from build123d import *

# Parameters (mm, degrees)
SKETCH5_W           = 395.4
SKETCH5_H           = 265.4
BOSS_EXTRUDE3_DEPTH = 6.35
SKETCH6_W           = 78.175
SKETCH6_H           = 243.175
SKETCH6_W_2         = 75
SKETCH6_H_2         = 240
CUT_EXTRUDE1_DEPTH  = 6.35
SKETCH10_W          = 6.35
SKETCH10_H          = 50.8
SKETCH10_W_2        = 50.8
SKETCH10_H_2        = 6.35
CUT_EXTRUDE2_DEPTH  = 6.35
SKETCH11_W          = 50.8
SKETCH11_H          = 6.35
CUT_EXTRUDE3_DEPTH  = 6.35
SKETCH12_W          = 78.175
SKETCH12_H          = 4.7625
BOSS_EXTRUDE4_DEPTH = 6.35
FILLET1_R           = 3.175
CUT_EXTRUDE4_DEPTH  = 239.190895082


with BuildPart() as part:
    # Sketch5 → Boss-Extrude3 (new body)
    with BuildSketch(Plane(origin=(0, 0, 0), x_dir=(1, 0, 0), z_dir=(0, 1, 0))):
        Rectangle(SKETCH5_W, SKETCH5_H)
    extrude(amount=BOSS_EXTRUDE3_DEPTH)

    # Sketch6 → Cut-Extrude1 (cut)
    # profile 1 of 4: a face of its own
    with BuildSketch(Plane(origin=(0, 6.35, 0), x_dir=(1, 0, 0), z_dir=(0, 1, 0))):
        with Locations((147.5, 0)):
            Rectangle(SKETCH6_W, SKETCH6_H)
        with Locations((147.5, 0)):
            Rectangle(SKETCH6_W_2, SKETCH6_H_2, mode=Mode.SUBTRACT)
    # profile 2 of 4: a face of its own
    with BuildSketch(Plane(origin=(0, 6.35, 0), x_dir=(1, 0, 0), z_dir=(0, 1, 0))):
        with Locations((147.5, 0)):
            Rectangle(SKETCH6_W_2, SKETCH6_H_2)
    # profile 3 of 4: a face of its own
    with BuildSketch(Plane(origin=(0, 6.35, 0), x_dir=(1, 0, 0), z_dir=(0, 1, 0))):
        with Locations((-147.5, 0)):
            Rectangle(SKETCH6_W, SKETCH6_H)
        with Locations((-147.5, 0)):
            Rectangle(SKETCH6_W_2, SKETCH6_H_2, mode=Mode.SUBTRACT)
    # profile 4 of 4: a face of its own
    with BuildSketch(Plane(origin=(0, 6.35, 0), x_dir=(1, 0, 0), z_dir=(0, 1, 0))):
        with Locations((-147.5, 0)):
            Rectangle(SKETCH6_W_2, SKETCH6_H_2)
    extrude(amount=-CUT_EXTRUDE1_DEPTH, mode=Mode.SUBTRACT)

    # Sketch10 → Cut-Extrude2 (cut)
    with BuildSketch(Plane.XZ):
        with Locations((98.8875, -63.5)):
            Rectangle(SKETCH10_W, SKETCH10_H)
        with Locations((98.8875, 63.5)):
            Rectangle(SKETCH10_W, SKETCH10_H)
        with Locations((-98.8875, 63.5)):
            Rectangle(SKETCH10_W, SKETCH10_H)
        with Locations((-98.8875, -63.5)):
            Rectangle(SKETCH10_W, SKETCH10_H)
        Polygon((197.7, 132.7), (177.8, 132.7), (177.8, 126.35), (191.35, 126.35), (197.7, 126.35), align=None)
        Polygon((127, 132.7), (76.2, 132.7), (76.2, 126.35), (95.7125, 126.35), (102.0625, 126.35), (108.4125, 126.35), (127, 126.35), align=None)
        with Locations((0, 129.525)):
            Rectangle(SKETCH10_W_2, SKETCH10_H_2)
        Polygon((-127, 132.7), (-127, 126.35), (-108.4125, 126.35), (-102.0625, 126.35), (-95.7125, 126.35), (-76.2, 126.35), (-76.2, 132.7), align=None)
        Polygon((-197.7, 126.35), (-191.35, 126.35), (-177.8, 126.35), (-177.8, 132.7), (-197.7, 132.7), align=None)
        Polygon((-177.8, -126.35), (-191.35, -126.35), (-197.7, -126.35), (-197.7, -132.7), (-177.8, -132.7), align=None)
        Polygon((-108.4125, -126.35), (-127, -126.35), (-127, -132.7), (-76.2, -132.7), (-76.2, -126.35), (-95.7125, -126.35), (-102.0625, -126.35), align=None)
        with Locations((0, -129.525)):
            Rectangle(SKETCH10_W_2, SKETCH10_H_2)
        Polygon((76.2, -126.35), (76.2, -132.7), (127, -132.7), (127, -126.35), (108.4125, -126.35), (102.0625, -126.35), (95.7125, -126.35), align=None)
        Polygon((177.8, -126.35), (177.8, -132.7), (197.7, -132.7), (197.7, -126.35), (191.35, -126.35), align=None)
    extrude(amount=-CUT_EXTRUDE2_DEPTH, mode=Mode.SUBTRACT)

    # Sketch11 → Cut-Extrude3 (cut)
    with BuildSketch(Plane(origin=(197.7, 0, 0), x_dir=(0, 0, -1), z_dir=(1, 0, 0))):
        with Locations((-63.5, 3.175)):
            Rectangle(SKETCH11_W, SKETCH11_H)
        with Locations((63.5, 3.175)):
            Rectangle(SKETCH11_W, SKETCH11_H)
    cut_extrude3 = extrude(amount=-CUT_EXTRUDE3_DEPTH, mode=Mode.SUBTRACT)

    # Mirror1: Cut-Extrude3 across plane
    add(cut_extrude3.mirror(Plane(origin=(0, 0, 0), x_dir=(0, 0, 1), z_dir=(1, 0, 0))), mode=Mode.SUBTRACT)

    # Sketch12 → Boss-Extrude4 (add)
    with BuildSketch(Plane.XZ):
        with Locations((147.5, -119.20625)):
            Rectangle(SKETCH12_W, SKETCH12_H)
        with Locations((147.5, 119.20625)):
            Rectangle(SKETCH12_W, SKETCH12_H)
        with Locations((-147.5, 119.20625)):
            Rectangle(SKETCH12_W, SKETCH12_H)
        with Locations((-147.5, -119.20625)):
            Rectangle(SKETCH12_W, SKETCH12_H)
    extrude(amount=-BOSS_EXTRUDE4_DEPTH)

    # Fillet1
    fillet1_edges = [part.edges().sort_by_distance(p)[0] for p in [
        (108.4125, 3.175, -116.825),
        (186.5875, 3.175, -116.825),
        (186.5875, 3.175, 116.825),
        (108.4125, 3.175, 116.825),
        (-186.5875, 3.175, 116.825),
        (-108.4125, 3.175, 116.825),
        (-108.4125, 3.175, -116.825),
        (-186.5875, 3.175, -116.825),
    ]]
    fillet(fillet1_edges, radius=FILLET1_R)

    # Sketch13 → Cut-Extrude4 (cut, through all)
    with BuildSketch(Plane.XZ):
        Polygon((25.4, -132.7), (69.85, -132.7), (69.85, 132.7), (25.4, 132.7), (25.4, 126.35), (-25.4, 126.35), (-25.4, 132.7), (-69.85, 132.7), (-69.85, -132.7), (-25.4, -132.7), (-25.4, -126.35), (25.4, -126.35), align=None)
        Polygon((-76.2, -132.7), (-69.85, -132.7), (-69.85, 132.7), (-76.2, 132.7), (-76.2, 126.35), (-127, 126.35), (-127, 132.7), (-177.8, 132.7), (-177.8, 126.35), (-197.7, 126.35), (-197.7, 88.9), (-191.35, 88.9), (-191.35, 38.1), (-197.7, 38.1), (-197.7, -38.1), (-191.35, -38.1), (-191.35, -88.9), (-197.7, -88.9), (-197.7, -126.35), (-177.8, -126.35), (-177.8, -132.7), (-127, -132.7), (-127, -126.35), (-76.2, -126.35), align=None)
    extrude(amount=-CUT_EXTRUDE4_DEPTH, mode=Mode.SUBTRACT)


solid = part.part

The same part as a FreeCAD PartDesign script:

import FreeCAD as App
import Part
import Sketcher
from FreeCAD import Vector
Q = App.Units.Quantity


def edges_at(feature, points):
    """Names of the edges that pass closest to the given points."""
    edges = feature.Shape.Edges
    near = lambda p: min(range(len(edges)), key=lambda i: edges[i].distToShape(Part.Vertex(*p))[0])
    return sorted({f"Edge{near(p) + 1}" for p in points})


def add_polygon(sketch, points):
    """Adds a closed chain of lines whose ends are joined by coincident constraints."""
    first, n = sketch.GeometryCount, len(points)
    for a, b in zip(points, points[1:] + points[:1]):
        sketch.addGeometry(Part.LineSegment(App.Vector(*a, 0), App.Vector(*b, 0)), False)
    for i in range(n):
        sketch.addConstraint(Sketcher.Constraint("Coincident", first + i, 2, first + (i + 1) % n, 1))

doc = App.newDocument("Part")
body = doc.addObject("PartDesign::Body", "Body")

sketch1 = doc.addObject("Sketcher::SketchObject", "Sketch")
body.addObject(sketch1)
sketch1.AttachmentSupport = (doc.XZ_Plane, [""])
sketch1.MapMode = "FlatFace"
add_polygon(sketch1, [(-197.7, -132.7), (-197.7, 132.7), (197.7, 132.7), (197.7, -132.7)])
sketch1.addConstraint(Sketcher.Constraint("Vertical", 0))
sketch1.addConstraint(Sketcher.Constraint("Horizontal", 1))
sketch1.addConstraint(Sketcher.Constraint("Vertical", 2))
sketch1.addConstraint(Sketcher.Constraint("Horizontal", 3))
sketch1.addConstraint(Sketcher.Constraint("Symmetric", 0, 2, 2, 2, -1, 1))
sketch1.addConstraint(Sketcher.Constraint("DistanceX", 1, 1, 1, 2, 395.4))
sketch1.addConstraint(Sketcher.Constraint("DistanceY", 0, 1, 0, 2, 265.4))
pad1 = doc.addObject("PartDesign::Pad", "Pad")
body.addObject(pad1)
pad1.Profile = sketch1
pad1.Length = Q("0.25 in")
pad1.Reversed = True

sketch2 = doc.addObject("Sketcher::SketchObject", "Sketch001")
body.addObject(sketch2)
sketch2.AttachmentSupport = (doc.XZ_Plane, [""])
sketch2.MapMode = "FlatFace"
sketch2.AttachmentOffset = App.Placement(Vector(0, 0, -0.25 * 25.4), App.Rotation())
add_polygon(sketch2, [(108.4125, -121.5875), (108.4125, 121.5875), (186.5875, 121.5875), (186.5875, -121.5875)])
add_polygon(sketch2, [(-186.5875, -121.5875), (-186.5875, 121.5875), (-108.4125, 121.5875), (-108.4125, -121.5875)])
sketch2.addConstraint(Sketcher.Constraint("Vertical", 0))
sketch2.addConstraint(Sketcher.Constraint("Horizontal", 1))
sketch2.addConstraint(Sketcher.Constraint("Vertical", 2))
sketch2.addConstraint(Sketcher.Constraint("Horizontal", 3))
sketch2.addConstraint(Sketcher.Constraint("Vertical", 4))
sketch2.addConstraint(Sketcher.Constraint("Horizontal", 5))
sketch2.addConstraint(Sketcher.Constraint("Vertical", 6))
sketch2.addConstraint(Sketcher.Constraint("Horizontal", 7))
sketch2.addConstraint(Sketcher.Constraint("Symmetric", 2, 2, 4, 2, -1, 1))
sketch2.addConstraint(Sketcher.Constraint("Symmetric", 0, 2, 6, 2, -1, 1))
sketch2.addConstraint(Sketcher.Constraint("Horizontal", 1, 2, 4, 2))
sketch2.addConstraint(Sketcher.Constraint("DistanceX", 1, 1, 1, 2, 78.175))
sketch2.addConstraint(Sketcher.Constraint("DistanceY", 0, 1, 0, 2, 243.175))
sketch2.addConstraint(Sketcher.Constraint("DistanceX", -1, 1, 0, 2, 108.4125))
pocket1 = doc.addObject("PartDesign::Pocket", "Pocket")
body.addObject(pocket1)
pocket1.Profile = sketch2
pocket1.Length = Q("0.25 in")
pocket1.Reversed = True

sketch3 = doc.addObject("Sketcher::SketchObject", "Sketch002")
body.addObject(sketch3)
sketch3.AttachmentSupport = (doc.XZ_Plane, [""])
sketch3.MapMode = "FlatFace"
add_polygon(sketch3, [(95.7125, -38.1), (95.7125, -88.9), (102.0625, -88.9), (102.0625, -38.1)])
add_polygon(sketch3, [(95.7125, 88.9), (95.7125, 38.1), (102.0625, 38.1), (102.0625, 88.9)])
add_polygon(sketch3, [(-102.0625, 88.9), (-102.0625, 38.1), (-95.7125, 38.1), (-95.7125, 88.9)])
add_polygon(sketch3, [(-102.0625, -38.1), (-102.0625, -88.9), (-95.7125, -88.9), (-95.7125, -38.1)])
add_polygon(sketch3, [(197.7, 132.7), (177.8, 132.7), (177.8, 126.35), (197.7, 126.35)])
add_polygon(sketch3, [(127, 132.7), (76.2, 132.7), (76.2, 126.35), (127, 126.35)])
add_polygon(sketch3, [(-25.4, 132.7), (-25.4, 126.35), (25.4, 126.35), (25.4, 132.7)])
add_polygon(sketch3, [(-127, 132.7), (-127, 126.35), (-76.2, 126.35), (-76.2, 132.7)])
add_polygon(sketch3, [(-197.7, 126.35), (-177.8, 126.35), (-177.8, 132.7), (-197.7, 132.7)])
add_polygon(sketch3, [(-177.8, -126.35), (-197.7, -126.35), (-197.7, -132.7), (-177.8, -132.7)])
add_polygon(sketch3, [(-127, -126.35), (-127, -132.7), (-76.2, -132.7), (-76.2, -126.35)])
add_polygon(sketch3, [(-25.4, -126.35), (-25.4, -132.7), (25.4, -132.7), (25.4, -126.35)])
add_polygon(sketch3, [(76.2, -126.35), (76.2, -132.7), (127, -132.7), (127, -126.35)])
add_polygon(sketch3, [(177.8, -126.35), (177.8, -132.7), (197.7, -132.7), (197.7, -126.35)])
sketch3.addConstraint(Sketcher.Constraint("Vertical", 0))
sketch3.addConstraint(Sketcher.Constraint("Horizontal", 1))
sketch3.addConstraint(Sketcher.Constraint("Vertical", 2))
sketch3.addConstraint(Sketcher.Constraint("Horizontal", 3))
sketch3.addConstraint(Sketcher.Constraint("Vertical", 4))
sketch3.addConstraint(Sketcher.Constraint("Horizontal", 5))
sketch3.addConstraint(Sketcher.Constraint("Vertical", 6))
sketch3.addConstraint(Sketcher.Constraint("Horizontal", 7))
sketch3.addConstraint(Sketcher.Constraint("Vertical", 8))
sketch3.addConstraint(Sketcher.Constraint("Horizontal", 9))
sketch3.addConstraint(Sketcher.Constraint("Vertical", 10))
sketch3.addConstraint(Sketcher.Constraint("Horizontal", 11))
sketch3.addConstraint(Sketcher.Constraint("Vertical", 12))
sketch3.addConstraint(Sketcher.Constraint("Horizontal", 13))
sketch3.addConstraint(Sketcher.Constraint("Vertical", 14))
sketch3.addConstraint(Sketcher.Constraint("Horizontal", 15))
sketch3.addConstraint(Sketcher.Constraint("Horizontal", 16))
sketch3.addConstraint(Sketcher.Constraint("Vertical", 17))
sketch3.addConstraint(Sketcher.Constraint("Horizontal", 18))
sketch3.addConstraint(Sketcher.Constraint("Vertical", 19))
sketch3.addConstraint(Sketcher.Constraint("Horizontal", 20))
sketch3.addConstraint(Sketcher.Constraint("Vertical", 21))
sketch3.addConstraint(Sketcher.Constraint("Horizontal", 22))
sketch3.addConstraint(Sketcher.Constraint("Vertical", 23))
sketch3.addConstraint(Sketcher.Constraint("Vertical", 24))
sketch3.addConstraint(Sketcher.Constraint("Horizontal", 25))
sketch3.addConstraint(Sketcher.Constraint("Vertical", 26))
sketch3.addConstraint(Sketcher.Constraint("Horizontal", 27))
sketch3.addConstraint(Sketcher.Constraint("Vertical", 28))
sketch3.addConstraint(Sketcher.Constraint("Horizontal", 29))
sketch3.addConstraint(Sketcher.Constraint("Vertical", 30))
sketch3.addConstraint(Sketcher.Constraint("Horizontal", 31))
sketch3.addConstraint(Sketcher.Constraint("Horizontal", 32))
sketch3.addConstraint(Sketcher.Constraint("Vertical", 33))
sketch3.addConstraint(Sketcher.Constraint("Horizontal", 34))
sketch3.addConstraint(Sketcher.Constraint("Vertical", 35))
sketch3.addConstraint(Sketcher.Constraint("Horizontal", 36))
sketch3.addConstraint(Sketcher.Constraint("Vertical", 37))
sketch3.addConstraint(Sketcher.Constraint("Horizontal", 38))
sketch3.addConstraint(Sketcher.Constraint("Vertical", 39))
sketch3.addConstraint(Sketcher.Constraint("Vertical", 40))
sketch3.addConstraint(Sketcher.Constraint("Horizontal", 41))
sketch3.addConstraint(Sketcher.Constraint("Vertical", 42))
sketch3.addConstraint(Sketcher.Constraint("Horizontal", 43))
sketch3.addConstraint(Sketcher.Constraint("Vertical", 44))
sketch3.addConstraint(Sketcher.Constraint("Horizontal", 45))
sketch3.addConstraint(Sketcher.Constraint("Vertical", 46))
sketch3.addConstraint(Sketcher.Constraint("Horizontal", 47))
sketch3.addConstraint(Sketcher.Constraint("Vertical", 48))
sketch3.addConstraint(Sketcher.Constraint("Horizontal", 49))
sketch3.addConstraint(Sketcher.Constraint("Vertical", 50))
sketch3.addConstraint(Sketcher.Constraint("Horizontal", 51))
sketch3.addConstraint(Sketcher.Constraint("Vertical", 52))
sketch3.addConstraint(Sketcher.Constraint("Horizontal", 53))
sketch3.addConstraint(Sketcher.Constraint("Vertical", 54))
sketch3.addConstraint(Sketcher.Constraint("Horizontal", 55))
sketch3.addConstraint(Sketcher.Constraint("Symmetric", 2, 2, 8, 2, -1, 1))
sketch3.addConstraint(Sketcher.Constraint("Symmetric", 0, 2, 10, 2, -1, 1))
sketch3.addConstraint(Sketcher.Constraint("Symmetric", 6, 2, 12, 2, -1, 1))
sketch3.addConstraint(Sketcher.Constraint("Symmetric", 4, 2, 14, 2, -1, 1))
sketch3.addConstraint(Sketcher.Constraint("Symmetric", 18, 2, 36, 2, -1, 1))
sketch3.addConstraint(Sketcher.Constraint("Symmetric", 16, 2, 38, 2, -1, 1))
sketch3.addConstraint(Sketcher.Constraint("Symmetric", 23, 2, 40, 2, -1, 1))
sketch3.addConstraint(Sketcher.Constraint("Symmetric", 21, 2, 42, 2, -1, 1))
sketch3.addConstraint(Sketcher.Constraint("Symmetric", 26, 2, 44, 2, -1, 1))
sketch3.addConstraint(Sketcher.Constraint("Symmetric", 24, 2, 46, 2, -1, 1))
sketch3.addConstraint(Sketcher.Constraint("Symmetric", 30, 2, 48, 2, -1, 1))
sketch3.addConstraint(Sketcher.Constraint("Symmetric", 28, 2, 50, 2, -1, 1))
sketch3.addConstraint(Sketcher.Constraint("Symmetric", 33, 2, 52, 2, -1, 1))
sketch3.addConstraint(Sketcher.Constraint("Symmetric", 35, 2, 54, 2, -1, 1))
sketch3.addConstraint(Sketcher.Constraint("Symmetric", 5, 2, 8, 2, -2))
sketch3.addConstraint(Sketcher.Constraint("Symmetric", 7, 2, 10, 2, -2))
sketch3.addConstraint(Sketcher.Constraint("Symmetric", 22, 2, 28, 2, -2))
sketch3.addConstraint(Sketcher.Constraint("Symmetric", 20, 2, 30, 2, -2))
sketch3.addConstraint(Sketcher.Constraint("Symmetric", 17, 2, 32, 2, -2))
sketch3.addConstraint(Sketcher.Constraint("Symmetric", 19, 2, 34, 2, -2))
sketch3.addConstraint(Sketcher.Constraint("Horizontal", 19, 2, 20, 2))
sketch3.addConstraint(Sketcher.Constraint("Horizontal", 18, 2, 21, 2))
sketch3.addConstraint(Sketcher.Constraint("Horizontal", 22, 2, 24, 2))
sketch3.addConstraint(Sketcher.Constraint("Horizontal", 23, 2, 26, 2))
sketch3.addConstraint(Sketcher.Constraint("Vertical", 27, 2, 44, 2))
sketch3.addConstraint(Sketcher.Constraint("Equal", 22, 25))
sketch3.addConstraint(Sketcher.Constraint("Equal", 51, 0))
sketch3.addConstraint(Sketcher.Constraint("Equal", 15, 17))
sketch3.addConstraint(Sketcher.Constraint("DistanceX", 20, 2, 20, 1, Q("2 in")))
sketch3.addConstraint(Sketcher.Constraint("DistanceX", -1, 1, 16, 2, Q("7 in")))
sketch3.addConstraint(Sketcher.Constraint("DistanceX", -1, 1, 20, 2, Q("3 in")))
sketch3.addConstraint(Sketcher.Constraint("DistanceY", 3, 2, 4, 2, Q("3 in")))
sketch3.addConstraint(Sketcher.Constraint("DistanceX", 1, 1, 1, 2, Q("0.25 in")))
sketch3.addConstraint(Sketcher.Constraint("DistanceX", 16, 2, 16, 1, 19.9))
sketch3.addConstraint(Sketcher.Constraint("DistanceX", -1, 1, 0, 2, 95.7125))
sketch3.addConstraint(Sketcher.Constraint("DistanceY", -1, 1, 16, 2, 132.7))
pocket2 = doc.addObject("PartDesign::Pocket", "Pocket001")
body.addObject(pocket2)
pocket2.Profile = sketch3
pocket2.Length = Q("0.25 in")

sketch4 = doc.addObject("Sketcher::SketchObject", "Sketch003")
body.addObject(sketch4)
sketch4.AttachmentSupport = (doc.YZ_Plane, [""])
sketch4.MapMode = "FlatFace"
sketch4.AttachmentOffset = App.Placement(Vector(0, 0, 197.7), App.Rotation())
add_polygon(sketch4, [(6.35, 88.9), (0, 88.9), (0, 38.1), (6.35, 38.1)])
add_polygon(sketch4, [(6.35, -38.1), (0, -38.1), (0, -88.9), (6.35, -88.9)])
sketch4.addConstraint(Sketcher.Constraint("Horizontal", 0))
sketch4.addConstraint(Sketcher.Constraint("Vertical", 1))
sketch4.addConstraint(Sketcher.Constraint("Horizontal", 2))
sketch4.addConstraint(Sketcher.Constraint("Vertical", 3))
sketch4.addConstraint(Sketcher.Constraint("Horizontal", 4))
sketch4.addConstraint(Sketcher.Constraint("Vertical", 5))
sketch4.addConstraint(Sketcher.Constraint("Horizontal", 6))
sketch4.addConstraint(Sketcher.Constraint("Vertical", 7))
sketch4.addConstraint(Sketcher.Constraint("Symmetric", 1, 2, 4, 2, -1, 1))
sketch4.addConstraint(Sketcher.Constraint("Symmetric", 0, 2, 5, 2, -1))
sketch4.addConstraint(Sketcher.Constraint("Vertical", 3, 2, 6, 2))
sketch4.addConstraint(Sketcher.Constraint("DistanceY", 1, 2, 1, 1, Q("2 in")))
sketch4.addConstraint(Sketcher.Constraint("DistanceY", 4, 2, 1, 2, Q("3 in")))
sketch4.addConstraint(Sketcher.Constraint("DistanceX", 0, 2, 0, 1, Q("0.25 in")))
pocket3 = doc.addObject("PartDesign::Pocket", "Pocket002")
body.addObject(pocket3)
pocket3.Profile = sketch4
pocket3.Length = Q("0.25 in")
doc.recompute()

mirrored = doc.addObject("PartDesign::Mirrored", "Mirrored")
body.addObject(mirrored)
mirrored.Originals = [pocket3]
mirrored.MirrorPlane = (doc.YZ_Plane, [""])
body.Tip = mirrored

sketch5 = doc.addObject("Sketcher::SketchObject", "Sketch004")
body.addObject(sketch5)
sketch5.AttachmentSupport = (doc.XZ_Plane, [""])
sketch5.MapMode = "FlatFace"
add_polygon(sketch5, [(108.4125, -116.825), (108.4125, -121.5875), (186.5875, -121.5875), (186.5875, -116.825)])
add_polygon(sketch5, [(108.4125, 121.5875), (108.4125, 116.825), (186.5875, 116.825), (186.5875, 121.5875)])
add_polygon(sketch5, [(-186.5875, 121.5875), (-186.5875, 116.825), (-108.4125, 116.825), (-108.4125, 121.5875)])
add_polygon(sketch5, [(-186.5875, -116.825), (-186.5875, -121.5875), (-108.4125, -121.5875), (-108.4125, -116.825)])
sketch5.addConstraint(Sketcher.Constraint("Vertical", 0))
sketch5.addConstraint(Sketcher.Constraint("Horizontal", 1))
sketch5.addConstraint(Sketcher.Constraint("Vertical", 2))
sketch5.addConstraint(Sketcher.Constraint("Horizontal", 3))
sketch5.addConstraint(Sketcher.Constraint("Vertical", 4))
sketch5.addConstraint(Sketcher.Constraint("Horizontal", 5))
sketch5.addConstraint(Sketcher.Constraint("Vertical", 6))
sketch5.addConstraint(Sketcher.Constraint("Horizontal", 7))
sketch5.addConstraint(Sketcher.Constraint("Vertical", 8))
sketch5.addConstraint(Sketcher.Constraint("Horizontal", 9))
sketch5.addConstraint(Sketcher.Constraint("Vertical", 10))
sketch5.addConstraint(Sketcher.Constraint("Horizontal", 11))
sketch5.addConstraint(Sketcher.Constraint("Vertical", 12))
sketch5.addConstraint(Sketcher.Constraint("Horizontal", 13))
sketch5.addConstraint(Sketcher.Constraint("Vertical", 14))
sketch5.addConstraint(Sketcher.Constraint("Horizontal", 15))
sketch5.addConstraint(Sketcher.Constraint("Symmetric", 2, 2, 8, 2, -1, 1))
sketch5.addConstraint(Sketcher.Constraint("Symmetric", 0, 2, 10, 2, -1, 1))
sketch5.addConstraint(Sketcher.Constraint("Symmetric", 6, 2, 12, 2, -1, 1))
sketch5.addConstraint(Sketcher.Constraint("Symmetric", 4, 2, 14, 2, -1, 1))
sketch5.addConstraint(Sketcher.Constraint("Symmetric", 5, 2, 8, 2, -2))
sketch5.addConstraint(Sketcher.Constraint("Symmetric", 7, 2, 10, 2, -2))
sketch5.addConstraint(Sketcher.Constraint("DistanceY", 0, 2, 0, 1, Q("0.1875 in")))
sketch5.addConstraint(Sketcher.Constraint("DistanceX", 1, 1, 1, 2, 78.175))
sketch5.addConstraint(Sketcher.Constraint("DistanceX", -1, 1, 0, 2, 108.4125))
sketch5.addConstraint(Sketcher.Constraint("DistanceY", 0, 2, -1, 1, 121.5875))
pad2 = doc.addObject("PartDesign::Pad", "Pad001")
body.addObject(pad2)
pad2.Profile = sketch5
pad2.Length = Q("0.25 in")
pad2.Reversed = True
doc.recompute()

fillet = doc.addObject("PartDesign::Fillet", "Fillet")
body.addObject(fillet)
fillet.Base = (pad2, edges_at(pad2, [
    (108.412, 3.175, -116.825),
    (186.588, 3.175, -116.825),
    (186.588, 3.175, 116.825),
    (108.412, 3.175, 116.825),
    (-186.588, 3.175, 116.825),
    (-108.412, 3.175, 116.825),
    (-108.412, 3.175, -116.825),
    (-186.588, 3.175, -116.825),
]))
fillet.Radius = Q("0.125 in")

sketch6 = doc.addObject("Sketcher::SketchObject", "Sketch005")
body.addObject(sketch6)
sketch6.AttachmentSupport = (doc.XZ_Plane, [""])
sketch6.MapMode = "FlatFace"
add_polygon(sketch6, [(25.4, -132.7), (69.85, -132.7), (69.85, 132.7), (25.4, 132.7), (25.4, 126.35), (-25.4, 126.35), (-25.4, 132.7), (-76.2, 132.7), (-76.2, 126.35), (-127, 126.35), (-127, 132.7), (-177.8, 132.7), (-177.8, 126.35), (-197.7, 126.35), (-197.7, 88.9), (-191.35, 88.9), (-191.35, 38.1), (-197.7, 38.1), (-197.7, -38.1), (-191.35, -38.1), (-191.35, -88.9), (-197.7, -88.9), (-197.7, -126.35), (-177.8, -126.35), (-177.8, -132.7), (-127, -132.7), (-127, -126.35), (-76.2, -126.35), (-76.2, -132.7), (-25.4, -132.7), (-25.4, -126.35), (25.4, -126.35)])
sketch6.addConstraint(Sketcher.Constraint("Horizontal", 0))
sketch6.addConstraint(Sketcher.Constraint("Vertical", 1))
sketch6.addConstraint(Sketcher.Constraint("Horizontal", 2))
sketch6.addConstraint(Sketcher.Constraint("Vertical", 3))
sketch6.addConstraint(Sketcher.Constraint("Horizontal", 4))
sketch6.addConstraint(Sketcher.Constraint("Vertical", 5))
sketch6.addConstraint(Sketcher.Constraint("Horizontal", 6))
sketch6.addConstraint(Sketcher.Constraint("Vertical", 7))
sketch6.addConstraint(Sketcher.Constraint("Horizontal", 8))
sketch6.addConstraint(Sketcher.Constraint("Vertical", 9))
sketch6.addConstraint(Sketcher.Constraint("Horizontal", 10))
sketch6.addConstraint(Sketcher.Constraint("Vertical", 11))
sketch6.addConstraint(Sketcher.Constraint("Horizontal", 12))
sketch6.addConstraint(Sketcher.Constraint("Vertical", 13))
sketch6.addConstraint(Sketcher.Constraint("Horizontal", 14))
sketch6.addConstraint(Sketcher.Constraint("Vertical", 15))
sketch6.addConstraint(Sketcher.Constraint("Horizontal", 16))
sketch6.addConstraint(Sketcher.Constraint("Vertical", 17))
sketch6.addConstraint(Sketcher.Constraint("Horizontal", 18))
sketch6.addConstraint(Sketcher.Constraint("Vertical", 19))
sketch6.addConstraint(Sketcher.Constraint("Horizontal", 20))
sketch6.addConstraint(Sketcher.Constraint("Vertical", 21))
sketch6.addConstraint(Sketcher.Constraint("Horizontal", 22))
sketch6.addConstraint(Sketcher.Constraint("Vertical", 23))
sketch6.addConstraint(Sketcher.Constraint("Horizontal", 24))
sketch6.addConstraint(Sketcher.Constraint("Vertical", 25))
sketch6.addConstraint(Sketcher.Constraint("Horizontal", 26))
sketch6.addConstraint(Sketcher.Constraint("Vertical", 27))
sketch6.addConstraint(Sketcher.Constraint("Horizontal", 28))
sketch6.addConstraint(Sketcher.Constraint("Vertical", 29))
sketch6.addConstraint(Sketcher.Constraint("Horizontal", 30))
sketch6.addConstraint(Sketcher.Constraint("Vertical", 31))
sketch6.addConstraint(Sketcher.Constraint("Symmetric", 2, 2, 28, 2, -1, 1))
sketch6.addConstraint(Sketcher.Constraint("Symmetric", 4, 2, 30, 2, -1, 1))
sketch6.addConstraint(Sketcher.Constraint("Symmetric", 2, 2, 5, 2, -2))
sketch6.addConstraint(Sketcher.Constraint("Symmetric", 15, 2, 18, 2, -1))
sketch6.addConstraint(Sketcher.Constraint("Symmetric", 13, 2, 20, 2, -1))
sketch6.addConstraint(Sketcher.Constraint("Symmetric", 11, 2, 22, 2, -1))
sketch6.addConstraint(Sketcher.Constraint("Symmetric", 9, 2, 24, 2, -1))
sketch6.addConstraint(Sketcher.Constraint("Symmetric", 7, 2, 26, 2, -1))
sketch6.addConstraint(Sketcher.Constraint("Horizontal", 4, 2, 7, 2))
sketch6.addConstraint(Sketcher.Constraint("Horizontal", 6, 2, 9, 2))
sketch6.addConstraint(Sketcher.Constraint("Horizontal", 8, 2, 11, 2))
sketch6.addConstraint(Sketcher.Constraint("Horizontal", 0, 2, 23, 2))
sketch6.addConstraint(Sketcher.Constraint("Vertical", 13, 2, 16, 2))
sketch6.addConstraint(Sketcher.Constraint("Equal", 4, 6))
sketch6.addConstraint(Sketcher.Constraint("Equal", 6, 8))
sketch6.addConstraint(Sketcher.Constraint("Equal", 8, 10))
sketch6.addConstraint(Sketcher.Constraint("Equal", 20, 3))
sketch6.addConstraint(Sketcher.Constraint("Equal", 30, 15))
sketch6.addConstraint(Sketcher.Constraint("DistanceX", 4, 2, 4, 1, Q("2 in")))
sketch6.addConstraint(Sketcher.Constraint("DistanceY", 17, 2, 17, 1, Q("3 in")))
sketch6.addConstraint(Sketcher.Constraint("DistanceX", 0, 1, 0, 2, Q("1.75 in")))
sketch6.addConstraint(Sketcher.Constraint("DistanceX", 14, 1, 14, 2, Q("0.25 in")))
sketch6.addConstraint(Sketcher.Constraint("DistanceX", 12, 2, 12, 1, 19.9))
sketch6.addConstraint(Sketcher.Constraint("DistanceY", 1, 1, 1, 2, 265.4))
pocket4 = doc.addObject("PartDesign::Pocket", "Pocket003")
body.addObject(pocket4)
pocket4.Profile = sketch6
pocket4.Type = "ThroughAll"

doc.recompute()
